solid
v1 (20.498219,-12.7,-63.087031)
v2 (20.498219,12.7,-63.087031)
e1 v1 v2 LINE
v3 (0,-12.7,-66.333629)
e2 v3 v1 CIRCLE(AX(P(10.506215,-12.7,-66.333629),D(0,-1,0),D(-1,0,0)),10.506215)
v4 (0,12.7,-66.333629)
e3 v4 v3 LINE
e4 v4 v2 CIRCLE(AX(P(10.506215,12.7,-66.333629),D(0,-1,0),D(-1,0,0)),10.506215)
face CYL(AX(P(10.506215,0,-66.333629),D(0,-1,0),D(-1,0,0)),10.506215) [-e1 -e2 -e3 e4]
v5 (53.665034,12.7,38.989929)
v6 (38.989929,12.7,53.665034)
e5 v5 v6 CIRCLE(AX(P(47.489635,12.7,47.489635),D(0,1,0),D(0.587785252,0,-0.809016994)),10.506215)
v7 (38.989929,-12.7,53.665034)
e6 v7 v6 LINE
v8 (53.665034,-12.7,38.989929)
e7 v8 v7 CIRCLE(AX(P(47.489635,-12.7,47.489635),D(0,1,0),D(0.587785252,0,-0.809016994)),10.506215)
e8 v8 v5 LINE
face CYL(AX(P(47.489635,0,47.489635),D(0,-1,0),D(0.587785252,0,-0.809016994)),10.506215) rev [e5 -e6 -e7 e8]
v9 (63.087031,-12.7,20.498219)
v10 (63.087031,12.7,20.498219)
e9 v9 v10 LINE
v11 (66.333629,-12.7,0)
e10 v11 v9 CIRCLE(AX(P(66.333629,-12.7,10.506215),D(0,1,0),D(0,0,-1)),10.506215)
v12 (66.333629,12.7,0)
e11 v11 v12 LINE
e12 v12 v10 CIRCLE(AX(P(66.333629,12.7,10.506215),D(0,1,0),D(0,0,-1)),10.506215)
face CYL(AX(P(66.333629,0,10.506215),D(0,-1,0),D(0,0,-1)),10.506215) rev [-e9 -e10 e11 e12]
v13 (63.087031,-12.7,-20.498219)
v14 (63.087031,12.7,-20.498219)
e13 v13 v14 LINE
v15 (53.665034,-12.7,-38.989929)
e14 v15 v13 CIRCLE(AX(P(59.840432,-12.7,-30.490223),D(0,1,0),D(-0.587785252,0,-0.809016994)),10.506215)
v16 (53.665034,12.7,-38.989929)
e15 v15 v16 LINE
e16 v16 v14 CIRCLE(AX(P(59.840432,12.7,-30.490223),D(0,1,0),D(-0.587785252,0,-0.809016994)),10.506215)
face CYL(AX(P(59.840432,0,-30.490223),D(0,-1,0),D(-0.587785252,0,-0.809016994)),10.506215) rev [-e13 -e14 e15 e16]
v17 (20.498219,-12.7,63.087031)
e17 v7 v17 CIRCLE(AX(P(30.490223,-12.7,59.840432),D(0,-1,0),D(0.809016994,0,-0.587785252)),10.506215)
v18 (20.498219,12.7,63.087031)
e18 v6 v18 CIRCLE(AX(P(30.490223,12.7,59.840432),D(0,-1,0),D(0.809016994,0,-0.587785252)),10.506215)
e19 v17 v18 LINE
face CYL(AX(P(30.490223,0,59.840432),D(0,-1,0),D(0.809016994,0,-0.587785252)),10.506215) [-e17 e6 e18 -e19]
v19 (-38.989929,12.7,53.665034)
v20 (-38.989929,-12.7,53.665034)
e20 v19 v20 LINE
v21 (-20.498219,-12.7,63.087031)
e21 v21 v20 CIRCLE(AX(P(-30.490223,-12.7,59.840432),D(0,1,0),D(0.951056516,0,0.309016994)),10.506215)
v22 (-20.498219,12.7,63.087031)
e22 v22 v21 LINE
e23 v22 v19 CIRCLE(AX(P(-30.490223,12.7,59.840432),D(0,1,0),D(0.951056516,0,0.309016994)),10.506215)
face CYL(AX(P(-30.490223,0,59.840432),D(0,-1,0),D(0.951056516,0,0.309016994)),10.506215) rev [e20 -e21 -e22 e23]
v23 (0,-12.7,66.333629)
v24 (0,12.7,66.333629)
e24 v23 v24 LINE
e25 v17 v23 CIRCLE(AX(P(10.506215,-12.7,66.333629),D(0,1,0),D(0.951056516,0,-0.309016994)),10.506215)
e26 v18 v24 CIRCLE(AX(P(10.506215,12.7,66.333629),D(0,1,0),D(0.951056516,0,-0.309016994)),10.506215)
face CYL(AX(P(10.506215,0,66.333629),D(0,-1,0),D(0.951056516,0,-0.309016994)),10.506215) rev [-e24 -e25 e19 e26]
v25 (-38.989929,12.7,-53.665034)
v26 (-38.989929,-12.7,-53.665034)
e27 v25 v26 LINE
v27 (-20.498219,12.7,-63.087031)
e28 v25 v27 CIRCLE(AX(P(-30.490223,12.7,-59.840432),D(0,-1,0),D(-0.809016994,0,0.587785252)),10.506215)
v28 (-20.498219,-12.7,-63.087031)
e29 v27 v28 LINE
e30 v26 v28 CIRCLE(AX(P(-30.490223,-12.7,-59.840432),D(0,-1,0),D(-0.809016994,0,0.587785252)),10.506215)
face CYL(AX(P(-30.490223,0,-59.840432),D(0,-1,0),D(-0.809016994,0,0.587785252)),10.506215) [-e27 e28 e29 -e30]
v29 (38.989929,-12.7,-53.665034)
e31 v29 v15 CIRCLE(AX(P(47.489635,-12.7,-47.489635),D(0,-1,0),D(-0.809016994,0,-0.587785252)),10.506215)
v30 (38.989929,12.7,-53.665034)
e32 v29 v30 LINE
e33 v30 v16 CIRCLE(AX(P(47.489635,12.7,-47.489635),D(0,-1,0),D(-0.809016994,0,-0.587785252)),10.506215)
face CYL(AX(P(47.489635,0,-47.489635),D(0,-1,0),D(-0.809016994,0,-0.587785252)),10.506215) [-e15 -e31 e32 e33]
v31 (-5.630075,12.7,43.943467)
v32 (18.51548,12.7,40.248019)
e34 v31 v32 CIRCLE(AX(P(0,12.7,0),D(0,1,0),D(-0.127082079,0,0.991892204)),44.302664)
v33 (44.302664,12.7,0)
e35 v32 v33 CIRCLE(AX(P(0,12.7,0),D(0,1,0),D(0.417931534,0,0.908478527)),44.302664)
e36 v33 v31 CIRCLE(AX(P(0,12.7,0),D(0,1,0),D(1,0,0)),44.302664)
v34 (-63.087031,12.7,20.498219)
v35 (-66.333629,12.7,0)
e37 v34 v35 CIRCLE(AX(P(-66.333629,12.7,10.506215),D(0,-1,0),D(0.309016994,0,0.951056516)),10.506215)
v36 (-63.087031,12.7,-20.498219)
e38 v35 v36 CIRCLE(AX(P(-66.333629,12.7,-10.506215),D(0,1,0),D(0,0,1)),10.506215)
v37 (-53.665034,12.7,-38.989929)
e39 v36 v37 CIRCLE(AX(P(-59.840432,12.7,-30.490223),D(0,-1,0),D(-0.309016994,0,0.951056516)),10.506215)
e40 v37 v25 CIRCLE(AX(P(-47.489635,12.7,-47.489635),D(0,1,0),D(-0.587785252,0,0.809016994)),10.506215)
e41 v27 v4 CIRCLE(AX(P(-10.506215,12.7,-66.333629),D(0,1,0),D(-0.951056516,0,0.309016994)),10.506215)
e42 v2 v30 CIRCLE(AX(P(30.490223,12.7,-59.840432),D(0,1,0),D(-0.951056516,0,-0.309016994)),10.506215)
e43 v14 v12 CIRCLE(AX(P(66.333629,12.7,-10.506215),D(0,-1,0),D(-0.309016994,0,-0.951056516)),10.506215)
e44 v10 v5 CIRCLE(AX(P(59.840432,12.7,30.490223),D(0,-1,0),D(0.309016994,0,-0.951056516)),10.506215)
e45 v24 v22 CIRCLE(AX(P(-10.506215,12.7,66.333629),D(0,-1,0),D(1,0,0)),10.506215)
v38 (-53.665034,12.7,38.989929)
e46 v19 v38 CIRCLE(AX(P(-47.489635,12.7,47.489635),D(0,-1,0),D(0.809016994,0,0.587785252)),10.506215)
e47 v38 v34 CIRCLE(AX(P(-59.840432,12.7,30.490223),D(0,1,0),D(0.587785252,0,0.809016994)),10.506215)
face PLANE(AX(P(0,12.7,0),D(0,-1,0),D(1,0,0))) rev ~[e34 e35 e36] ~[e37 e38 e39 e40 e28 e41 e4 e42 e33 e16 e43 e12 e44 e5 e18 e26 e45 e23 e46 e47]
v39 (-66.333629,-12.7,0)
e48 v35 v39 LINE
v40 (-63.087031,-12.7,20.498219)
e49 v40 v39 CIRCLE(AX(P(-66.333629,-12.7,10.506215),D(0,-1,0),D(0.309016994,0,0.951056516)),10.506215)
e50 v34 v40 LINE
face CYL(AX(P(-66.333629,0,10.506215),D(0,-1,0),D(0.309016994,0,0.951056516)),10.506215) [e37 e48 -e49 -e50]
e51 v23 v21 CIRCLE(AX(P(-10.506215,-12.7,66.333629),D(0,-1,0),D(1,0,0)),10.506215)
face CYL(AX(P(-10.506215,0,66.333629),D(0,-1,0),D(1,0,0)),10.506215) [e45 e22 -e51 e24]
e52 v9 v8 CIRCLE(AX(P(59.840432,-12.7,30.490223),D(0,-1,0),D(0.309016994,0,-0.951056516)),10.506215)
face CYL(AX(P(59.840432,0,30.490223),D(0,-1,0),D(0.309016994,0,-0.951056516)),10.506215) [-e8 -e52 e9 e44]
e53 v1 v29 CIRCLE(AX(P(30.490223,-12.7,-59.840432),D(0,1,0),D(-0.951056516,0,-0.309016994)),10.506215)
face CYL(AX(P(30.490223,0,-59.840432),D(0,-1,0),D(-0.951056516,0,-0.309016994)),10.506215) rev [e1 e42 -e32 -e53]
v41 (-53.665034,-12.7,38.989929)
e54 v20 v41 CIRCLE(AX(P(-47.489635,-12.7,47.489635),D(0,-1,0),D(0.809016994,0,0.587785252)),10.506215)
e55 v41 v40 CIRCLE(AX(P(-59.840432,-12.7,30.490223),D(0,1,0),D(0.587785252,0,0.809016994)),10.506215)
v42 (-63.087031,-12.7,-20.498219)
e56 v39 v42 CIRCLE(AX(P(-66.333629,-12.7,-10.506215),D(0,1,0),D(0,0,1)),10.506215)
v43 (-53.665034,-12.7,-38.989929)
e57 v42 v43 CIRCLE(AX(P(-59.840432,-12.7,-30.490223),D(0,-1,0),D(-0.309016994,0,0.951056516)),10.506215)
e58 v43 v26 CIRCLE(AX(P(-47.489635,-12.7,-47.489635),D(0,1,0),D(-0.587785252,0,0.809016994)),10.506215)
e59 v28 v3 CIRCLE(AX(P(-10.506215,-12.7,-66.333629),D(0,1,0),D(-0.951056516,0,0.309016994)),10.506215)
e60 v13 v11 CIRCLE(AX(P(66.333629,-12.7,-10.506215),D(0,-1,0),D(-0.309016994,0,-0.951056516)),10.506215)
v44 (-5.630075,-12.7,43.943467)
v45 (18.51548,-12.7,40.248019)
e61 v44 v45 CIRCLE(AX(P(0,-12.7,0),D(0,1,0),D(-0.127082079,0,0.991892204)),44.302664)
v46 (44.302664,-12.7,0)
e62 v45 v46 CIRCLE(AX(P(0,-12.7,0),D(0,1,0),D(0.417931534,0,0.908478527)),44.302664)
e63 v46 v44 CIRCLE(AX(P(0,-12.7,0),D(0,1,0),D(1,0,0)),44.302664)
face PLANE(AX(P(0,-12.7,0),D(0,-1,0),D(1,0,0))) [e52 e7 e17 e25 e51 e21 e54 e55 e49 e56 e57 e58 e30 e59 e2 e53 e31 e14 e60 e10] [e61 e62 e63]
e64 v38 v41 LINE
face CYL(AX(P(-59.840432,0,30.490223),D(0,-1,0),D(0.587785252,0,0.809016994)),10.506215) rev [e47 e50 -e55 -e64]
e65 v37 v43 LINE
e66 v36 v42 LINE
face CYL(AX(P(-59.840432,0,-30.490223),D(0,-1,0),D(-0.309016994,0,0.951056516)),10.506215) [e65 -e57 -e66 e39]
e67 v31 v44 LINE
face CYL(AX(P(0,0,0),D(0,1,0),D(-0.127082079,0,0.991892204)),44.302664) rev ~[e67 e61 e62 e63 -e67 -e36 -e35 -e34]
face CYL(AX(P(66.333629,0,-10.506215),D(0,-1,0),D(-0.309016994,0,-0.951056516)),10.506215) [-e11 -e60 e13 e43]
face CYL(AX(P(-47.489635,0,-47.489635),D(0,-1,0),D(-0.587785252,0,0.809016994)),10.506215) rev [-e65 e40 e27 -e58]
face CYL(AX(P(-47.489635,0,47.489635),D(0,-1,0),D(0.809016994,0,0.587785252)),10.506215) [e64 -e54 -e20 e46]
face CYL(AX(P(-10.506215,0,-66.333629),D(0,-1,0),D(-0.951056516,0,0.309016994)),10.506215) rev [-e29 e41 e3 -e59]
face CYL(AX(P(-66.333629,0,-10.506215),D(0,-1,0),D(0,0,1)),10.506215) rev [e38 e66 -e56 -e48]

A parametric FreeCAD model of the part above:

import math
import FreeCAD as App
import Part
import Sketcher

V = App.Vector
Q = App.Units.Quantity

doc = App.newDocument("Part")
body = doc.addObject("PartDesign::Body", "Body")

# Sketch on XZ plane
sketch1 = body.newObject("Sketcher::SketchObject", "Sketch")
sketch1.AttachmentSupport = (doc.getObject("XZ_Plane"), [""])
sketch1.MapMode = "FlatFace"
sketch1.addGeometry([
    Part.ArcOfCircle(Part.Circle(V(-11, 66, 0), V(0, 0, 1), 11), math.radians(0), math.radians(198)),  # 0
    Part.ArcOfCircle(Part.Circle(V(-30, 60, 0), V(0, 0, 1), 11), math.radians(-144), math.radians(18)),  # 1
    Part.ArcOfCircle(Part.Circle(V(-47, 47, 0), V(0, 0, 1), 11), math.radians(36), math.radians(234)),  # 2
    Part.ArcOfCircle(Part.Circle(V(-60, 30, 0), V(0, 0, 1), 11), math.radians(-108), math.radians(54)),  # 3
    Part.ArcOfCircle(Part.Circle(V(-66, 11, 0), V(0, 0, 1), 11), math.radians(72), math.radians(270)),  # 4
    Part.ArcOfCircle(Part.Circle(V(-66, -11, 0), V(0, 0, 1), 11), math.radians(-72), math.radians(90)),  # 5
    Part.ArcOfCircle(Part.Circle(V(-60, -30, 0), V(0, 0, 1), 11), math.radians(108), math.radians(306)),  # 6
    Part.ArcOfCircle(Part.Circle(V(-47, -47, 0), V(0, 0, 1), 11), math.radians(-36), math.radians(126)),  # 7
    Part.ArcOfCircle(Part.Circle(V(-30, -60, 0), V(0, 0, 1), 11), math.radians(144), math.radians(342)),  # 8
    Part.ArcOfCircle(Part.Circle(V(-11, -66, 0), V(0, 0, 1), 11), math.radians(0), math.radians(162)),  # 9
    Part.ArcOfCircle(Part.Circle(V(11, -66, 0), V(0, 0, 1), 11), math.radians(180), math.radians(378)),  # 10
    Part.ArcOfCircle(Part.Circle(V(30, -60, 0), V(0, 0, 1), 11), math.radians(36), math.radians(198)),  # 11
    Part.ArcOfCircle(Part.Circle(V(47, -47, 0), V(0, 0, 1), 11), math.radians(-144), math.radians(54)),  # 12
    Part.ArcOfCircle(Part.Circle(V(60, -30, 0), V(0, 0, 1), 11), math.radians(72), math.radians(234)),  # 13
    Part.ArcOfCircle(Part.Circle(V(66, -11, 0), V(0, 0, 1), 11), math.radians(-108), math.radians(90)),  # 14
    Part.ArcOfCircle(Part.Circle(V(66, 11, 0), V(0, 0, 1), 11), math.radians(108), math.radians(270)),  # 15
    Part.ArcOfCircle(Part.Circle(V(60, 30, 0), V(0, 0, 1), 11), math.radians(-72), math.radians(126)),  # 16
    Part.ArcOfCircle(Part.Circle(V(47, 47, 0), V(0, 0, 1), 11), math.radians(144), math.radians(306)),  # 17
    Part.ArcOfCircle(Part.Circle(V(30, 60, 0), V(0, 0, 1), 11), math.radians(-36), math.radians(162)),  # 18
    Part.ArcOfCircle(Part.Circle(V(11, 66, 0), V(0, 0, 1), 11), math.radians(180), math.radians(342)),  # 19
    Part.ArcOfCircle(Part.Circle(V(0, 0, 0), V(0, 0, 1), 44), math.radians(97), math.radians(360)),  # 20
    Part.ArcOfCircle(Part.Circle(V(0, 0, 0), V(0, 0, 1), 44), math.radians(65), math.radians(97)),  # 21
    Part.ArcOfCircle(Part.Circle(V(0, 0, 0), V(0, 0, 1), 44), math.radians(0), math.radians(65)),  # 22
], False)
sketch1.addConstraint([
    Sketcher.Constraint("Tangent", 0, 2, 1, 2),
    Sketcher.Constraint("Tangent", 1, 1, 2, 1),
    Sketcher.Constraint("Tangent", 2, 2, 3, 2),
    Sketcher.Constraint("Tangent", 3, 1, 4, 1),
    Sketcher.Constraint("Tangent", 4, 2, 5, 2),
    Sketcher.Constraint("Tangent", 5, 1, 6, 1),
    Sketcher.Constraint("Tangent", 6, 2, 7, 2),
    Sketcher.Constraint("Tangent", 7, 1, 8, 1),
    Sketcher.Constraint("Tangent", 8, 2, 9, 2),
    Sketcher.Constraint("Tangent", 9, 1, 10, 1),
    Sketcher.Constraint("Tangent", 10, 2, 11, 2),
    Sketcher.Constraint("Tangent", 11, 1, 12, 1),
    Sketcher.Constraint("Tangent", 12, 2, 13, 2),
    Sketcher.Constraint("Tangent", 13, 1, 14, 1),
    Sketcher.Constraint("Tangent", 14, 2, 15, 2),
    Sketcher.Constraint("Tangent", 15, 1, 16, 1),
    Sketcher.Constraint("Tangent", 16, 2, 17, 2),
    Sketcher.Constraint("Tangent", 17, 1, 18, 1),
    Sketcher.Constraint("Tangent", 18, 2, 19, 2),
    Sketcher.Constraint("Tangent", 19, 1, 0, 1),
    Sketcher.Constraint("Tangent", 20, 1, 21, 2),
    Sketcher.Constraint("Tangent", 21, 1, 22, 2),
    Sketcher.Constraint("Tangent", 22, 1, 20, 2),
    Sketcher.Constraint("Coincident", 20, 3, -1, 1),
    Sketcher.Constraint("Equal", 0, 1),
    Sketcher.Constraint("Equal", 1, 2),
    Sketcher.Constraint("Equal", 2, 3),
    Sketcher.Constraint("Equal", 3, 4),
    Sketcher.Constraint("Equal", 4, 5),
    Sketcher.Constraint("Equal", 5, 6),
    Sketcher.Constraint("Equal", 6, 7),
    Sketcher.Constraint("Equal", 7, 8),
    Sketcher.Constraint("Equal", 8, 9),
    Sketcher.Constraint("Equal", 9, 10),
    Sketcher.Constraint("Equal", 10, 11),
    Sketcher.Constraint("Equal", 11, 12),
    Sketcher.Constraint("Equal", 12, 13),
    Sketcher.Constraint("Equal", 13, 14),
    Sketcher.Constraint("Equal", 14, 15),
    Sketcher.Constraint("Equal", 15, 16),
    Sketcher.Constraint("Equal", 16, 17),
    Sketcher.Constraint("Equal", 17, 18),
    Sketcher.Constraint("Equal", 18, 19),
    Sketcher.Constraint("Symmetric", 0, 3, 10, 3, -1, 1),
    Sketcher.Constraint("Symmetric", 2, 3, 12, 3, -1, 1),
    Sketcher.Constraint("Symmetric", 4, 3, 14, 3, -1, 1),
    Sketcher.Constraint("Symmetric", 6, 3, 16, 3, -1, 1),
    Sketcher.Constraint("Symmetric", 8, 3, 18, 3, -1, 1),
    Sketcher.Constraint("Symmetric", 9, 3, 10, 3, -2),
    Sketcher.Constraint("Symmetric", 7, 3, 12, 3, -2),
    Sketcher.Constraint("Symmetric", 5, 3, 14, 3, -2),
    Sketcher.Constraint("PointOnObject", 22, 1, -1),
    Sketcher.Constraint("Radius", 0, Q("10.506215 mm")),
    Sketcher.Constraint("Radius", 20, Q("44.302664 mm")),
    Sketcher.Constraint("DistanceY", 0, 2, 0, 3, Q("3.246599 mm")),
    Sketcher.Constraint("DistanceY", 2, 3, 1, 1, Q("6.175398 mm")),
    Sketcher.Constraint("DistanceX", 3, 3, 2, 2, Q("6.175398 mm")),
    Sketcher.Constraint("DistanceX", 3, 1, 3, 3, Q("3.246599 mm")),
    Sketcher.Constraint("DistanceX", -1, 1, 21, 1, Q("18.51548 mm")),
    Sketcher.Constraint("DistanceX", 0, 3, 20, 1, Q("4.87614 mm")),
])
pad1 = body.newObject("PartDesign::Pad", "Pad")
pad1.Profile = sketch1
pad1.Length = Q("1 in")
pad1.Midplane = True

doc.recompute()
